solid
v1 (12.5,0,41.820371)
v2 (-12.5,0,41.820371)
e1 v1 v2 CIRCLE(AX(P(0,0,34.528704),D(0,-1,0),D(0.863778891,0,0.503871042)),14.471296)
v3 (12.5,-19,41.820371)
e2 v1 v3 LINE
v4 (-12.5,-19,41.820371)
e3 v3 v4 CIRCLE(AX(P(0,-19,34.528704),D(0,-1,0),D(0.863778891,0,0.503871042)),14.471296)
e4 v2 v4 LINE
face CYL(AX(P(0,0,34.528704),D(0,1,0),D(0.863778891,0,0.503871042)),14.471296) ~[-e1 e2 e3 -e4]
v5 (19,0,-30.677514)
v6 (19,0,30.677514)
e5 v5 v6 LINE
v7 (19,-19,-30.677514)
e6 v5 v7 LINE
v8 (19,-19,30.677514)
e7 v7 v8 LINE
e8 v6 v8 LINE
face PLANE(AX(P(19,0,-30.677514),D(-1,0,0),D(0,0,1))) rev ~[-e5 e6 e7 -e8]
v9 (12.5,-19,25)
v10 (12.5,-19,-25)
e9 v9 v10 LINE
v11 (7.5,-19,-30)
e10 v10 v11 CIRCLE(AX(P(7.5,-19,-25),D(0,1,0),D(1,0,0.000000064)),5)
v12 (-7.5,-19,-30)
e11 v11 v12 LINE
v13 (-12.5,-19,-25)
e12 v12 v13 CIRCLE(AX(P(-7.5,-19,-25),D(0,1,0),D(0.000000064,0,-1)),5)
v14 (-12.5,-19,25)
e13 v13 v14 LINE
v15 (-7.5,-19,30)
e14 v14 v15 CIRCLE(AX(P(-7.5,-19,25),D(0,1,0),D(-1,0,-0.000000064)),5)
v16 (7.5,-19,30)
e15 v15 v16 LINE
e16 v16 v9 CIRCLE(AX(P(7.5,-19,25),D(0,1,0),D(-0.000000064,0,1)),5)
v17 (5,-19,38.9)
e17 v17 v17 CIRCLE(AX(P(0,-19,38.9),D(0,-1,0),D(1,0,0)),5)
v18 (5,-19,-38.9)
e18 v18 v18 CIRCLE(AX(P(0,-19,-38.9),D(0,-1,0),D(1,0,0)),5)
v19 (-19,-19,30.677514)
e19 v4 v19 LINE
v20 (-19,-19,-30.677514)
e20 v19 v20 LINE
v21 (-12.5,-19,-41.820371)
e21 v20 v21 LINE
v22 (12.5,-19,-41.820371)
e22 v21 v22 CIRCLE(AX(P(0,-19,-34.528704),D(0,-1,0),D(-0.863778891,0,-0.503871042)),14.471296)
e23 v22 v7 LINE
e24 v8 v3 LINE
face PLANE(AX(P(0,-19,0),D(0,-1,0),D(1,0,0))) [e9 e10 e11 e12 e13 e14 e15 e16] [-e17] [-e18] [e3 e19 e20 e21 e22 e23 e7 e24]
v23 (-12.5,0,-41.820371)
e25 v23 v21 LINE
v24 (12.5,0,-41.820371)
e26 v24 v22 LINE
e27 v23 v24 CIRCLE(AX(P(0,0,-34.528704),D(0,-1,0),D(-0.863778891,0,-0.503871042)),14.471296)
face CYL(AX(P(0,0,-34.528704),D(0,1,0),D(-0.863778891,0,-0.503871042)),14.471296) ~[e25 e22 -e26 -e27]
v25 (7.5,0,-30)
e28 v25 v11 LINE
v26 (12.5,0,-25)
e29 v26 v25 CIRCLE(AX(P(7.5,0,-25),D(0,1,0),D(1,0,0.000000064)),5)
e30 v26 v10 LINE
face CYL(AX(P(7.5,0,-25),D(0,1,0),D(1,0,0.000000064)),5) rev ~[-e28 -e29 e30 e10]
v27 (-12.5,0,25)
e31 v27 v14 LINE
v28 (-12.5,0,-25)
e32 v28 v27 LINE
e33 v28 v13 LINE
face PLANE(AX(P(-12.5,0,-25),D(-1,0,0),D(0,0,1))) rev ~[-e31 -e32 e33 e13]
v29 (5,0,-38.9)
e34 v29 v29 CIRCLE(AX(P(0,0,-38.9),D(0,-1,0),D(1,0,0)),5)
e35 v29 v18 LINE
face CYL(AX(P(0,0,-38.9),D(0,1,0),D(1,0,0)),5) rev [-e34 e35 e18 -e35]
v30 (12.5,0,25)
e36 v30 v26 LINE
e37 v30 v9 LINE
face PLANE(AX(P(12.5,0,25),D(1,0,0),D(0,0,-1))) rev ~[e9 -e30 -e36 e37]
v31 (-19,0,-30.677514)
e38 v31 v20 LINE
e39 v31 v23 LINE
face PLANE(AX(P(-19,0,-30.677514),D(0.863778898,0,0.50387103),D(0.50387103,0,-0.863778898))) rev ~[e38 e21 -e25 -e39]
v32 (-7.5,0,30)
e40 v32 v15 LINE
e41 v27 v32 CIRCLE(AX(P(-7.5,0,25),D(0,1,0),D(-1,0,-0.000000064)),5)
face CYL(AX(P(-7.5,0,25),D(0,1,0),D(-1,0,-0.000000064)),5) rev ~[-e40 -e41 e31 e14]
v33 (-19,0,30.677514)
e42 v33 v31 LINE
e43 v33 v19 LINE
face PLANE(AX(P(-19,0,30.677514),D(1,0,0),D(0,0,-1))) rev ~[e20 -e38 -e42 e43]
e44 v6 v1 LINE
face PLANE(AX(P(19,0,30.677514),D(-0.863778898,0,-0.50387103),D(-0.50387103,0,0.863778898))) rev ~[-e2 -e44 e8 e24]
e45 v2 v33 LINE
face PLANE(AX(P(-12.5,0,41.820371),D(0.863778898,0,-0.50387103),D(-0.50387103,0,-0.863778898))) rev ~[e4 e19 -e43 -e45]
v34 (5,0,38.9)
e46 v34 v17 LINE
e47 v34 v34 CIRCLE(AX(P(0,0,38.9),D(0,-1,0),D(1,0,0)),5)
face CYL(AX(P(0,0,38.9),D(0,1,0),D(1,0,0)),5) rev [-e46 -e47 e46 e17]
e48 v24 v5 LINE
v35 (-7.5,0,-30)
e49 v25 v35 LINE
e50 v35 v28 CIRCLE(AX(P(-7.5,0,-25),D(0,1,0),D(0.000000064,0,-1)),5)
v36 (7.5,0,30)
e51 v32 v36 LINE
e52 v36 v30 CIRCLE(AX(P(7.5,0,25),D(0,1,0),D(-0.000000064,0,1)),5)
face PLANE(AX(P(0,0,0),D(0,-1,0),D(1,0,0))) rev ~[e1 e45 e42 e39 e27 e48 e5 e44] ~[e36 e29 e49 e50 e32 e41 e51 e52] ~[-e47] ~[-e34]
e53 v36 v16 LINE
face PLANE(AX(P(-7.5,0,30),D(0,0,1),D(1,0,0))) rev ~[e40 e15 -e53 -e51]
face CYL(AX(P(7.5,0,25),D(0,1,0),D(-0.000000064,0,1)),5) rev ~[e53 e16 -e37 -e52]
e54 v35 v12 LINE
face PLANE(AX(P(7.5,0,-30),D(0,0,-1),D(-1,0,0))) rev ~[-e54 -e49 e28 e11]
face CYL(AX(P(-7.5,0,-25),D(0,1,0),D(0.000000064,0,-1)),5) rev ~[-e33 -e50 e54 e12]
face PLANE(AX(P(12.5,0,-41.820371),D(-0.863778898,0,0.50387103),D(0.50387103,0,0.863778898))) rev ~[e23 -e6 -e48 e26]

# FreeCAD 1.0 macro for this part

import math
import FreeCAD as App
import Part
import Sketcher
Q = App.Units.Quantity

doc = App.newDocument("Part")
params = doc.addObject("Spreadsheet::Sheet", "Params")
for row, (alias, value) in enumerate([
    ("sketch1_diameter", "10 mm"),
    ("sketch1_width", "15 mm"),
    ("sketch1_height", "50 mm"),
    ("pad1_length", "19 mm"),
], start=1):
    params.set(f"A{row}", alias)
    params.set(f"B{row}", "=" + value)
    params.setAlias(f"B{row}", alias)

body = doc.addObject("PartDesign::Body", "Body")

# Sketch on XZ plane
sketch1 = body.newObject("Sketcher::SketchObject", "Sketch")
sketch1.AttachmentSupport = (doc.getObject("XZ_Plane"), [""])
sketch1.MapMode = "FlatFace"
sketch1.addGeometry([
    Part.LineSegment(App.Vector(-12.5, 41.820371, 0), App.Vector(-19, 30.677514, 0)),  # 0
    Part.LineSegment(App.Vector(-19, 30.677514, 0), App.Vector(-19, -30.677514, 0)),  # 1
    Part.LineSegment(App.Vector(-19, -30.677514, 0), App.Vector(-12.5, -41.820371, 0)),  # 2
    Part.ArcOfCircle(Part.Circle(App.Vector(0, -34.528704, 0), App.Vector(0, 0, 1), 14.471296), math.radians(-149.743562), math.radians(-30.256438)),  # 3
    Part.LineSegment(App.Vector(12.5, -41.820371, 0), App.Vector(19, -30.677514, 0)),  # 4
    Part.LineSegment(App.Vector(19, -30.677514, 0), App.Vector(19, 30.677514, 0)),  # 5
    Part.LineSegment(App.Vector(19, 30.677514, 0), App.Vector(12.5, 41.820371, 0)),  # 6
    Part.ArcOfCircle(Part.Circle(App.Vector(0, 34.528704, 0), App.Vector(0, 0, 1), 14.471296), math.radians(30.256438), math.radians(149.743562)),  # 7
    Part.Circle(App.Vector(0, -38.9, 0), App.Vector(0, 0, 1), 5),  # 8
    Part.ArcOfCircle(Part.Circle(App.Vector(-7.5, -25, 0), App.Vector(0, 0, 1), 5), math.radians(179.999996), math.radians(270.000004)),  # 9
    Part.LineSegment(App.Vector(-12.5, -25, 0), App.Vector(-12.5, 25, 0)),  # 10
    Part.ArcOfCircle(Part.Circle(App.Vector(-7.5, 25, 0), App.Vector(0, 0, 1), 5), math.radians(89.999996), math.radians(180.000004)),  # 11
    Part.LineSegment(App.Vector(-7.5, 30, 0), App.Vector(7.5, 30, 0)),  # 12
    Part.ArcOfCircle(Part.Circle(App.Vector(7.5, 25, 0), App.Vector(0, 0, 1), 5), math.radians(-0.000004), math.radians(90.000004)),  # 13
    Part.LineSegment(App.Vector(12.5, 25, 0), App.Vector(12.5, -25, 0)),  # 14
    Part.ArcOfCircle(Part.Circle(App.Vector(7.5, -25, 0), App.Vector(0, 0, 1), 5), math.radians(-90.000004), math.radians(0.000004)),  # 15
    Part.LineSegment(App.Vector(7.5, -30, 0), App.Vector(-7.5, -30, 0)),  # 16
    Part.Circle(App.Vector(0, 38.9, 0), App.Vector(0, 0, 1), 5),  # 17
], False)
sketch1.addConstraint([
    Sketcher.Constraint("Coincident", 0, 2, 1, 1),
    Sketcher.Constraint("Coincident", 1, 2, 2, 1),
    Sketcher.Constraint("Tangent", 2, 2, 3, 1),
    Sketcher.Constraint("Tangent", 3, 2, 4, 1),
    Sketcher.Constraint("Coincident", 4, 2, 5, 1),
    Sketcher.Constraint("Coincident", 5, 2, 6, 1),
    Sketcher.Constraint("Tangent", 6, 2, 7, 1),
    Sketcher.Constraint("Tangent", 7, 2, 0, 1),
    Sketcher.Constraint("Tangent", 9, 1, 10, 1),
    Sketcher.Constraint("Tangent", 10, 2, 11, 2),
    Sketcher.Constraint("Tangent", 11, 1, 12, 1),
    Sketcher.Constraint("Tangent", 12, 2, 13, 2),
    Sketcher.Constraint("Tangent", 13, 1, 14, 1),
    Sketcher.Constraint("Tangent", 14, 2, 15, 2),
    Sketcher.Constraint("Tangent", 15, 1, 16, 1),
    Sketcher.Constraint("Tangent", 16, 2, 9, 2),
    Sketcher.Constraint("Vertical", 1),
    Sketcher.Constraint("Vertical", 5),
    Sketcher.Constraint("Vertical", 10),
    Sketcher.Constraint("Horizontal", 12),
    Sketcher.Constraint("Vertical", 14),
    Sketcher.Constraint("Horizontal", 16),
    Sketcher.Constraint("Equal", 3, 7),
    Sketcher.Constraint("Equal", 8, 9),
    Sketcher.Constraint("Equal", 9, 11),
    Sketcher.Constraint("Equal", 11, 13),
    Sketcher.Constraint("Equal", 13, 15),
    Sketcher.Constraint("Equal", 15, 17),
    Sketcher.Constraint("Symmetric", 3, 3, 7, 3, -1, 1),
    Sketcher.Constraint("Symmetric", 9, 3, 13, 3, -1, 1),
    Sketcher.Constraint("Symmetric", 8, 3, 17, 3, -1, 1),
    Sketcher.Constraint("Symmetric", 0, 2, 4, 2, -1, 1),
    Sketcher.Constraint("Symmetric", 2, 2, 3, 2, -2),
    Sketcher.Constraint("PointOnObject", 8, 3, -2),
    Sketcher.Constraint("Parallel", 2, 6),
    Sketcher.Constraint("Vertical", 7, 2, 9, 1),
    Sketcher.Constraint("Diameter", 8, Q("10 mm")),
    Sketcher.Constraint("DistanceX", 12, 1, 12, 2, Q("15 mm")),
    Sketcher.Constraint("DistanceY", 10, 1, 10, 2, Q("50 mm")),
    Sketcher.Constraint("DistanceX", 0, 2, -1, 1, Q("19 mm")),
    Sketcher.Constraint("DistanceY", 8, 3, -1, 1, Q("38.9 mm")),
    Sketcher.Constraint("Radius", 3, Q("14.471296 mm")),
    Sketcher.Constraint("DistanceY", 1, 2, 1, 1, Q("61.355028 mm")),
])
sketch1.setExpression("Constraints[36]", "Params.sketch1_diameter")
sketch1.setExpression("Constraints[37]", "Params.sketch1_width")
sketch1.setExpression("Constraints[38]", "Params.sketch1_height")
pad1 = body.newObject("PartDesign::Pad", "Pad")
pad1.Profile = sketch1
pad1.setExpression("Length", "Params.pad1_length")

doc.recompute()
